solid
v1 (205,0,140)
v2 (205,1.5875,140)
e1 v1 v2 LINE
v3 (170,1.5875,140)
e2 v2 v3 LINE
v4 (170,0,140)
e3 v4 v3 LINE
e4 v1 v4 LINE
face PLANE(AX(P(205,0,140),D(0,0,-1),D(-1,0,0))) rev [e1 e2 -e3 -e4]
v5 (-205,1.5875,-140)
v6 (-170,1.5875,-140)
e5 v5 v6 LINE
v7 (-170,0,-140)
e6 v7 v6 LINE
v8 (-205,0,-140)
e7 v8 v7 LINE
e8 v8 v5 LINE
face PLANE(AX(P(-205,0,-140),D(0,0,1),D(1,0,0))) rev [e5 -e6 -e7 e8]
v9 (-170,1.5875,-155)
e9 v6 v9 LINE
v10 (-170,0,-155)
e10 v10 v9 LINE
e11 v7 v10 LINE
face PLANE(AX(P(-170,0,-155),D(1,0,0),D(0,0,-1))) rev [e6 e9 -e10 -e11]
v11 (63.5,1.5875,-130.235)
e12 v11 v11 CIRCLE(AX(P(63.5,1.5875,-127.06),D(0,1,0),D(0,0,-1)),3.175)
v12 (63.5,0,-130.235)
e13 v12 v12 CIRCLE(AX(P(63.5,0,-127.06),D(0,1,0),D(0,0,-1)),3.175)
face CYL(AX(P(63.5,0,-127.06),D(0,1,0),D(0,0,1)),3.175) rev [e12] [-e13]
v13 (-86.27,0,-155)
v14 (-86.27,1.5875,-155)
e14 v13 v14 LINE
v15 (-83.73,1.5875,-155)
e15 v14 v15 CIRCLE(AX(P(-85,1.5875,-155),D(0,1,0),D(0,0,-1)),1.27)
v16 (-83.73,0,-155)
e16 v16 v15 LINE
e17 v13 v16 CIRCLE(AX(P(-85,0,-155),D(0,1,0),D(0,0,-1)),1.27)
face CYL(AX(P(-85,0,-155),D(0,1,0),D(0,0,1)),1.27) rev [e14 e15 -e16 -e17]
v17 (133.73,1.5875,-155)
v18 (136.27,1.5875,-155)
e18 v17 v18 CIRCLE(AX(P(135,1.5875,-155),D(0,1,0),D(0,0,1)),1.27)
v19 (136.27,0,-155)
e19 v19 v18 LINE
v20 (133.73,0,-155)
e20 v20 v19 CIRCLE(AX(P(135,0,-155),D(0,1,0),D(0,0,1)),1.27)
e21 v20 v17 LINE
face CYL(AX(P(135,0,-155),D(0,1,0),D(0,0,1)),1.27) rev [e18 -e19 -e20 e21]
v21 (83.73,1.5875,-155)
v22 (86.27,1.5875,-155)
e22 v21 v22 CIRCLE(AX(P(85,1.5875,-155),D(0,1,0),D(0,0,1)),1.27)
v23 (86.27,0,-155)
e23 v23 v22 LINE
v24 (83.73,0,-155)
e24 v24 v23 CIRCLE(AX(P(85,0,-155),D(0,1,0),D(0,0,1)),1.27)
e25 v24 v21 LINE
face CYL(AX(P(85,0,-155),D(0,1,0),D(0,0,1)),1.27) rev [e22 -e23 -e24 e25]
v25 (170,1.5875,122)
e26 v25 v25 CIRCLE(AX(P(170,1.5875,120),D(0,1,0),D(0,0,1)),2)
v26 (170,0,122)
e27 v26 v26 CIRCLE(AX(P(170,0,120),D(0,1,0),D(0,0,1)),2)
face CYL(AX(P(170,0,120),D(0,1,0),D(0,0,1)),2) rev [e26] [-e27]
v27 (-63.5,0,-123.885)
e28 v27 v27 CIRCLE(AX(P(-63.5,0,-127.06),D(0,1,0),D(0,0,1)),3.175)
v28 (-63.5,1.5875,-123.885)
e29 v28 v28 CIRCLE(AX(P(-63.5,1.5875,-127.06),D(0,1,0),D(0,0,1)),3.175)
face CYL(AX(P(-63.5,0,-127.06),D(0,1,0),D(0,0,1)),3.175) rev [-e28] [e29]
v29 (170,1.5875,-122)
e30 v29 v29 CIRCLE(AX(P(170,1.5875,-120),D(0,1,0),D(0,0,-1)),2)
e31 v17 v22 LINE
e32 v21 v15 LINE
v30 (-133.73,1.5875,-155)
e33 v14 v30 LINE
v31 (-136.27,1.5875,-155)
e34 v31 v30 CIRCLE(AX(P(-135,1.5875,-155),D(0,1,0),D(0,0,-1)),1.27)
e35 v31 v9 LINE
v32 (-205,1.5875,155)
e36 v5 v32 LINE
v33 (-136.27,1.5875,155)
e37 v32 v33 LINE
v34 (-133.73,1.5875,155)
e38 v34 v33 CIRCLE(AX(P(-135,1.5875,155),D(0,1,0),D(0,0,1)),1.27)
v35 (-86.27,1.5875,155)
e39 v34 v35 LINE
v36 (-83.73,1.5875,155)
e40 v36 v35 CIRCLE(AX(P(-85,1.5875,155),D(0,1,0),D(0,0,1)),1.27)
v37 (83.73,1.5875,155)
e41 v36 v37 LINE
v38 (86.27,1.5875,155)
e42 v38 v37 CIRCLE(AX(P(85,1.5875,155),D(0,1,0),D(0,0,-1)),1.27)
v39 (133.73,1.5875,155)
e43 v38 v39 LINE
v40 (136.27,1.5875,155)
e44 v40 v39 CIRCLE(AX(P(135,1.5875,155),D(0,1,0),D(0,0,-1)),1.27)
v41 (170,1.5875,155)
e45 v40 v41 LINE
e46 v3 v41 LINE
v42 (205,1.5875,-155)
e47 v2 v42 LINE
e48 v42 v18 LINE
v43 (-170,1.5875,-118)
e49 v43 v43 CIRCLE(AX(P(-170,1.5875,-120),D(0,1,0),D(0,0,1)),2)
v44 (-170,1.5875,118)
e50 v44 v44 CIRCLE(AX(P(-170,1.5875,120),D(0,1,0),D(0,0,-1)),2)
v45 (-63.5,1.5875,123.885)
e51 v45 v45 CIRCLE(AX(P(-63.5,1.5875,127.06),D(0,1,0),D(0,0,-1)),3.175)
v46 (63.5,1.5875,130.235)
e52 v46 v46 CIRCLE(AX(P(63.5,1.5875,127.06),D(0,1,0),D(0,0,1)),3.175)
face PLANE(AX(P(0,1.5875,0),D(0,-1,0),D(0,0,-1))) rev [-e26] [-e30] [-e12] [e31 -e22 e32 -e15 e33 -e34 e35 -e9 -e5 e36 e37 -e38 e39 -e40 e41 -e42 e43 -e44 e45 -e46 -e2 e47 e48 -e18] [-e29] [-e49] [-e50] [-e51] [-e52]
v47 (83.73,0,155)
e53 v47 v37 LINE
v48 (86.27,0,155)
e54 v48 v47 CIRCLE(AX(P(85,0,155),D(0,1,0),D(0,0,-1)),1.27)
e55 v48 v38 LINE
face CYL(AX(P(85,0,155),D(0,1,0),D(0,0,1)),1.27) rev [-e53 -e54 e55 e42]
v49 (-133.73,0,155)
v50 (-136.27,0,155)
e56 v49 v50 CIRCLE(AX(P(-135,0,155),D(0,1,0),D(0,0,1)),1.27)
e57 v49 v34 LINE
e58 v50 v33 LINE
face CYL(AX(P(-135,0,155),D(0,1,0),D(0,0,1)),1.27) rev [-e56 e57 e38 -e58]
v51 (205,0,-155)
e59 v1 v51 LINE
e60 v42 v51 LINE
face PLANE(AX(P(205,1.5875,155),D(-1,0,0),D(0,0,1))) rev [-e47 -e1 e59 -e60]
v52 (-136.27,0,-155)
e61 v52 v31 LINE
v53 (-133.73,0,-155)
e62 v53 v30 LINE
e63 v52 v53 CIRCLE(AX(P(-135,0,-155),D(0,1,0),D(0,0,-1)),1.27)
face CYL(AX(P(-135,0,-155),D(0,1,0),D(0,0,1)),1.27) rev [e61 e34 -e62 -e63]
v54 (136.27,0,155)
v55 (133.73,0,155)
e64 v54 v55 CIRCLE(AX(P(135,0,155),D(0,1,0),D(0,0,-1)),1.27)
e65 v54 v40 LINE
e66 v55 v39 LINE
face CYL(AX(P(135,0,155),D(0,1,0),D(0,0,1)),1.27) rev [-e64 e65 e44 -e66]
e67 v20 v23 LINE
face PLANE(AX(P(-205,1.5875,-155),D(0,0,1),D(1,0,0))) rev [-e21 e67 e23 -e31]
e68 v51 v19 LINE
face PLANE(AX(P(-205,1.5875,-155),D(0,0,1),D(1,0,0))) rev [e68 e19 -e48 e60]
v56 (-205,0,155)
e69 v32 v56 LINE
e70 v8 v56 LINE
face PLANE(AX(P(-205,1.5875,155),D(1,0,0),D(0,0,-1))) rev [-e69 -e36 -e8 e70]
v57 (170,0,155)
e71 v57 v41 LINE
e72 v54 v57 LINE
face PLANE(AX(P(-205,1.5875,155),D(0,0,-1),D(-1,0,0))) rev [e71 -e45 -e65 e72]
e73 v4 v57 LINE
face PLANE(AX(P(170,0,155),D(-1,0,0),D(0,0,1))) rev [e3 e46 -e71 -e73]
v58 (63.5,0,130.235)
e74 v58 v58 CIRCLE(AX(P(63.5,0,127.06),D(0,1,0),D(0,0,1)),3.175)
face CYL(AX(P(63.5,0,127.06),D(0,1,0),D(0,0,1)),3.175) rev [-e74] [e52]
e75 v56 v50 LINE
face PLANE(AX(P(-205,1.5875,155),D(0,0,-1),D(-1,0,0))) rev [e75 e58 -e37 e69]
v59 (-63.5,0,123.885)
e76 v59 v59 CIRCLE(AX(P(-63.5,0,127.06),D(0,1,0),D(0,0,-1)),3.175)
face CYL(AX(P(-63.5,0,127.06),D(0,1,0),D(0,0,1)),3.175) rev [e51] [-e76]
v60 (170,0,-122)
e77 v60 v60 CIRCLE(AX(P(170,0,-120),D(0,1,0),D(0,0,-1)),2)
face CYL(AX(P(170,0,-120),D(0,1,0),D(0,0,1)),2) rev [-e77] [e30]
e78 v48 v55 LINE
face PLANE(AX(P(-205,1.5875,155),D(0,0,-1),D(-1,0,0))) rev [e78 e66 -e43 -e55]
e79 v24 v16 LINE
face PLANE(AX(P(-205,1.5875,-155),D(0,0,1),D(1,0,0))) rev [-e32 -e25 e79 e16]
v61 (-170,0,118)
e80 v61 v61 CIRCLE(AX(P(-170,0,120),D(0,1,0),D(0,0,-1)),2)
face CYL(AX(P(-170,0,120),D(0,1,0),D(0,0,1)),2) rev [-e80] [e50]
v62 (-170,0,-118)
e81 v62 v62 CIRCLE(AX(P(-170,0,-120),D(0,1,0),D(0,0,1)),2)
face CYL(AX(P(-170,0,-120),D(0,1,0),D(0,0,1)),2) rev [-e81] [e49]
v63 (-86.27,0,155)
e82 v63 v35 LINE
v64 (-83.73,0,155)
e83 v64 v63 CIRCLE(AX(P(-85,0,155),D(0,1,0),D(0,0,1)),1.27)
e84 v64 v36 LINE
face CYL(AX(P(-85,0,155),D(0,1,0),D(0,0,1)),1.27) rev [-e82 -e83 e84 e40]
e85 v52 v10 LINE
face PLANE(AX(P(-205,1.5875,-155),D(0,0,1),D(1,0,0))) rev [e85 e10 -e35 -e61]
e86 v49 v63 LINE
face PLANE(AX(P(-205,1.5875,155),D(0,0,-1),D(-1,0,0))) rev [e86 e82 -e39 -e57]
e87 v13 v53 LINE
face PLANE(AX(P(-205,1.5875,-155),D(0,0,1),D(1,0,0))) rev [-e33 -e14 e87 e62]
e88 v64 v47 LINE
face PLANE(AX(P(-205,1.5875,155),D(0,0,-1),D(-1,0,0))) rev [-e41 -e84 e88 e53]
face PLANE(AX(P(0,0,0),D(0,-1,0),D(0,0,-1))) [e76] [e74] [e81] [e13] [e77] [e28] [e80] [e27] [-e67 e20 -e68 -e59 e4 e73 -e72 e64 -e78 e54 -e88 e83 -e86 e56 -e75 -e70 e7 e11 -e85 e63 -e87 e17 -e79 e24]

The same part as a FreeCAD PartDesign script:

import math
import FreeCAD as App
import Part
import Sketcher

V = App.Vector

doc = App.newDocument("Part")
params = doc.addObject("Spreadsheet::Sheet", "Params")
for row, (alias, value) in enumerate([
    ("sketch1_width", "410 mm"),
    ("sketch1_height", "310 mm"),
    ("pad1_length", "1.5875 mm"),
    ("sketch2_diameter", "4 mm"),
    ("sketch2_diameter2", "6.35 mm"),
    ("sketch2_radius", "1.27 mm"),
    ("sketch3_width", "35 mm"),
    ("sketch3_height", "15 mm"),
], start=1):
    params.set(f"A{row}", alias)
    params.set(f"B{row}", "=" + value)
    params.setAlias(f"B{row}", alias)

body = doc.addObject("PartDesign::Body", "Body")

# Sketch on XZ plane
sketch1 = body.newObject("Sketcher::SketchObject", "Sketch")
sketch1.AttachmentSupport = (doc.getObject("XZ_Plane"), [""])
sketch1.MapMode = "FlatFace"
sketch1.addGeometry([
    Part.LineSegment(V(-205, -155, 0), V(-205, 155, 0)),
    Part.LineSegment(V(-205, 155, 0), V(205, 155, 0)),
    Part.LineSegment(V(205, 155, 0), V(205, -155, 0)),
    Part.LineSegment(V(205, -155, 0), V(-205, -155, 0)),
], False)
sketch1.addConstraint([
    Sketcher.Constraint("Coincident", 0, 2, 1, 1),
    Sketcher.Constraint("Coincident", 1, 2, 2, 1),
    Sketcher.Constraint("Coincident", 2, 2, 3, 1),
    Sketcher.Constraint("Coincident", 3, 2, 0, 1),
    Sketcher.Constraint("Vertical", 0),
    Sketcher.Constraint("Horizontal", 1),
    Sketcher.Constraint("Vertical", 2),
    Sketcher.Constraint("Horizontal", 3),
    Sketcher.Constraint("Symmetric", 0, 2, 2, 2, -1, 1),
    Sketcher.Constraint("DistanceX", 1, 1, 1, 2, 410.0),
    Sketcher.Constraint("DistanceY", 0, 1, 0, 2, 310.0),
])
sketch1.setExpression("Constraints[9]", "Params.sketch1_width")
sketch1.setExpression("Constraints[10]", "Params.sketch1_height")
pad1 = body.newObject("PartDesign::Pad", "Pad")
pad1.Profile = sketch1
pad1.setExpression("Length", "Params.pad1_length")
pad1.Reversed = True

# Sketch on XZ plane
sketch2 = body.newObject("Sketcher::SketchObject", "Sketch001")
sketch2.AttachmentSupport = (doc.getObject("XZ_Plane"), [""])
sketch2.MapMode = "FlatFace"
sketch2.AttachmentOffset = App.Placement(V(0, 0, -1.5875), App.Rotation())
sketch2.addGeometry([
    Part.Circle(V(-63.5, -127.06, 0), V(0, 0, 1), 3.175),  # 0
    Part.Circle(V(-170, -120, 0), V(0, 0, 1), 2),  # 1
    Part.Circle(V(63.5, -127.06, 0), V(0, 0, 1), 3.175),  # 2
    Part.Circle(V(170, -120, 0), V(0, 0, 1), 2),  # 3
    Part.Circle(V(170, 120, 0), V(0, 0, 1), 2),  # 4
    Part.Circle(V(63.5, 127.06, 0), V(0, 0, 1), 3.175),  # 5
    Part.Circle(V(-63.5, 127.06, 0), V(0, 0, 1), 3.175),  # 6
    Part.Circle(V(-170, 120, 0), V(0, 0, 1), 2),  # 7
    Part.LineSegment(V(-133.73, -155, 0), V(-136.27, -155, 0)),  # 8
    Part.ArcOfCircle(Part.Circle(V(-135, -155, 0), V(0, 0, 1), 1.27), math.radians(0), math.radians(180)),  # 9
    Part.LineSegment(V(-83.73, -155, 0), V(-86.27, -155, 0)),  # 10
    Part.ArcOfCircle(Part.Circle(V(-85, -155, 0), V(0, 0, 1), 1.27), math.radians(0), math.radians(180)),  # 11
    Part.LineSegment(V(86.27, -155, 0), V(83.73, -155, 0)),  # 12
    Part.ArcOfCircle(Part.Circle(V(85, -155, 0), V(0, 0, 1), 1.27), math.radians(0), math.radians(180)),  # 13
    Part.LineSegment(V(136.27, -155, 0), V(133.73, -155, 0)),  # 14
    Part.ArcOfCircle(Part.Circle(V(135, -155, 0), V(0, 0, 1), 1.27), math.radians(0), math.radians(180)),  # 15
    Part.LineSegment(V(133.73, 155, 0), V(136.27, 155, 0)),  # 16
    Part.ArcOfCircle(Part.Circle(V(135, 155, 0), V(0, 0, 1), 1.27), math.radians(180), math.radians(360)),  # 17
    Part.LineSegment(V(83.73, 155, 0), V(86.27, 155, 0)),  # 18
    Part.ArcOfCircle(Part.Circle(V(85, 155, 0), V(0, 0, 1), 1.27), math.radians(180), math.radians(360)),  # 19
    Part.LineSegment(V(-86.27, 155, 0), V(-83.73, 155, 0)),  # 20
    Part.ArcOfCircle(Part.Circle(V(-85, 155, 0), V(0, 0, 1), 1.27), math.radians(180), math.radians(360)),  # 21
    Part.LineSegment(V(-136.27, 155, 0), V(-133.73, 155, 0)),  # 22
    Part.ArcOfCircle(Part.Circle(V(-135, 155, 0), V(0, 0, 1), 1.27), math.radians(180), math.radians(360)),  # 23
], False)
sketch2.addConstraint([
    Sketcher.Constraint("Coincident", 8, 1, 9, 1),
    Sketcher.Constraint("Coincident", 9, 2, 8, 2),
    Sketcher.Constraint("Coincident", 10, 1, 11, 1),
    Sketcher.Constraint("Coincident", 11, 2, 10, 2),
    Sketcher.Constraint("Coincident", 12, 1, 13, 1),
    Sketcher.Constraint("Coincident", 13, 2, 12, 2),
    Sketcher.Constraint("Coincident", 14, 1, 15, 1),
    Sketcher.Constraint("Coincident", 15, 2, 14, 2),
    Sketcher.Constraint("Coincident", 16, 1, 17, 1),
    Sketcher.Constraint("Coincident", 17, 2, 16, 2),
    Sketcher.Constraint("Coincident", 18, 1, 19, 1),
    Sketcher.Constraint("Coincident", 19, 2, 18, 2),
    Sketcher.Constraint("Coincident", 20, 1, 21, 1),
    Sketcher.Constraint("Coincident", 21, 2, 20, 2),
    Sketcher.Constraint("Coincident", 22, 1, 23, 1),
    Sketcher.Constraint("Coincident", 23, 2, 22, 2),
    Sketcher.Constraint("Horizontal", 8),
    Sketcher.Constraint("Horizontal", 10),
    Sketcher.Constraint("Horizontal", 12),
    Sketcher.Constraint("Horizontal", 14),
    Sketcher.Constraint("Horizontal", 16),
    Sketcher.Constraint("Horizontal", 18),
    Sketcher.Constraint("Horizontal", 20),
    Sketcher.Constraint("Horizontal", 22),
    Sketcher.Constraint("Equal", 0, 2),
    Sketcher.Constraint("Equal", 1, 3),
    Sketcher.Constraint("Equal", 3, 4),
    Sketcher.Constraint("Equal", 2, 5),
    Sketcher.Constraint("Equal", 5, 6),
    Sketcher.Constraint("Equal", 4, 7),
    Sketcher.Constraint("Equal", 9, 11),
    Sketcher.Constraint("Equal", 11, 13),
    Sketcher.Constraint("Equal", 13, 15),
    Sketcher.Constraint("Equal", 15, 17),
    Sketcher.Constraint("Equal", 17, 19),
    Sketcher.Constraint("Equal", 19, 21),
    Sketcher.Constraint("Equal", 21, 23),
    Sketcher.Constraint("Symmetric", 1, 3, 4, 3, -1, 1),
    Sketcher.Constraint("Symmetric", 0, 3, 5, 3, -1, 1),
    Sketcher.Constraint("Symmetric", 2, 3, 6, 3, -1, 1),
    Sketcher.Constraint("Symmetric", 3, 3, 7, 3, -1, 1),
    Sketcher.Constraint("Symmetric", 9, 3, 17, 3, -1, 1),
    Sketcher.Constraint("Symmetric", 11, 3, 19, 3, -1, 1),
    Sketcher.Constraint("Symmetric", 13, 3, 21, 3, -1, 1),
    Sketcher.Constraint("Symmetric", 15, 3, 23, 3, -1, 1),
    Sketcher.Constraint("Symmetric", 0, 3, 2, 3, -2),
    Sketcher.Constraint("Symmetric", 1, 3, 3, 3, -2),
    Sketcher.Constraint("Symmetric", 11, 3, 13, 3, -2),
    Sketcher.Constraint("Symmetric", 9, 3, 15, 3, -2),
    Sketcher.Constraint("Horizontal", 9, 3, 11, 3),
    Sketcher.Constraint("Horizontal", 15, 3, 8, 1),
    Sketcher.Constraint("Horizontal", 9, 2, 10, 1),
    Sketcher.Constraint("Horizontal", 11, 2, 12, 1),
    Sketcher.Constraint("Horizontal", 13, 2, 14, 1),
    Sketcher.Constraint("Horizontal", 23, 3, 16, 1),
    Sketcher.Constraint("Horizontal", 17, 2, 18, 1),
    Sketcher.Constraint("Horizontal", 19, 2, 20, 1),
    Sketcher.Constraint("Horizontal", 21, 2, 22, 1),
    Sketcher.Constraint("Diameter", 1, 4.0),
    Sketcher.Constraint("Diameter", 0, 6.35),
    Sketcher.Constraint("Radius", 9, 1.27),
    Sketcher.Constraint("DistanceX", 1, 3, -1, 1, 170.0),
    Sketcher.Constraint("DistanceY", 1, 3, -1, 1, 120.0),
    Sketcher.Constraint("DistanceX", 9, 3, -1, 1, 135.0),
    Sketcher.Constraint("DistanceY", 9, 3, -1, 1, 155.0),
    Sketcher.Constraint("DistanceX", 11, 3, -1, 1, 85.0),
    Sketcher.Constraint("DistanceX", 0, 3, 2, 3, 127.0),
    Sketcher.Constraint("DistanceY", 0, 3, -1, 1, 127.06),
])
sketch2.setExpression("Constraints[58]", "Params.sketch2_diameter")
sketch2.setExpression("Constraints[59]", "Params.sketch2_diameter2")
sketch2.setExpression("Constraints[60]", "Params.sketch2_radius")
pocket1 = body.newObject("PartDesign::Pocket", "Pocket")
pocket1.Profile = sketch2
pocket1.Type = "ThroughAll"
pocket1.Reversed = True

# Sketch on XZ plane
sketch3 = body.newObject("Sketcher::SketchObject", "Sketch002")
sketch3.AttachmentSupport = (doc.getObject("XZ_Plane"), [""])
sketch3.MapMode = "FlatFace"
sketch3.AttachmentOffset = App.Placement(V(0, 0, -1.5875), App.Rotation())
sketch3.addGeometry([
    Part.LineSegment(V(-205, -155, 0), V(-205, -140, 0)),  # 0
    Part.LineSegment(V(-205, -140, 0), V(-170, -140, 0)),  # 1
    Part.LineSegment(V(-170, -140, 0), V(-170, -155, 0)),  # 2
    Part.LineSegment(V(-170, -155, 0), V(-205, -155, 0)),  # 3
    Part.LineSegment(V(170, 140, 0), V(170, 155, 0)),  # 4
    Part.LineSegment(V(170, 155, 0), V(205, 155, 0)),  # 5
    Part.LineSegment(V(205, 155, 0), V(205, 140, 0)),  # 6
    Part.LineSegment(V(205, 140, 0), V(170, 140, 0)),  # 7
], False)
sketch3.addConstraint([
    Sketcher.Constraint("Coincident", 0, 2, 1, 1),
    Sketcher.Constraint("Coincident", 1, 2, 2, 1),
    Sketcher.Constraint("Coincident", 2, 2, 3, 1),
    Sketcher.Constraint("Coincident", 3, 2, 0, 1),
    Sketcher.Constraint("Coincident", 4, 2, 5, 1),
    Sketcher.Constraint("Coincident", 5, 2, 6, 1),
    Sketcher.Constraint("Coincident", 6, 2, 7, 1),
    Sketcher.Constraint("Coincident", 7, 2, 4, 1),
    Sketcher.Constraint("Vertical", 0),
    Sketcher.Constraint("Horizontal", 1),
    Sketcher.Constraint("Vertical", 2),
    Sketcher.Constraint("Horizontal", 3),
    Sketcher.Constraint("Vertical", 4),
    Sketcher.Constraint("Horizontal", 5),
    Sketcher.Constraint("Vertical", 6),
    Sketcher.Constraint("Horizontal", 7),
    Sketcher.Constraint("Symmetric", 2, 2, 4, 2, -1, 1),
    Sketcher.Constraint("Symmetric", 0, 2, 6, 2, -1, 1),
    Sketcher.Constraint("DistanceX", 1, 1, 1, 2, 35.0),
    Sketcher.Constraint("DistanceY", 0, 1, 0, 2, 15.0),
    Sketcher.Constraint("DistanceX", 0, 2, -1, 1, 205.0),
    Sketcher.Constraint("DistanceY", 0, 2, -1, 1, 140.0),
])
sketch3.setExpression("Constraints[18]", "Params.sketch3_width")
sketch3.setExpression("Constraints[19]", "Params.sketch3_height")
pocket2 = body.newObject("PartDesign::Pocket", "Pocket001")
pocket2.Profile = sketch3
pocket2.Type = "ThroughAll"
pocket2.Reversed = True

doc.recompute()
